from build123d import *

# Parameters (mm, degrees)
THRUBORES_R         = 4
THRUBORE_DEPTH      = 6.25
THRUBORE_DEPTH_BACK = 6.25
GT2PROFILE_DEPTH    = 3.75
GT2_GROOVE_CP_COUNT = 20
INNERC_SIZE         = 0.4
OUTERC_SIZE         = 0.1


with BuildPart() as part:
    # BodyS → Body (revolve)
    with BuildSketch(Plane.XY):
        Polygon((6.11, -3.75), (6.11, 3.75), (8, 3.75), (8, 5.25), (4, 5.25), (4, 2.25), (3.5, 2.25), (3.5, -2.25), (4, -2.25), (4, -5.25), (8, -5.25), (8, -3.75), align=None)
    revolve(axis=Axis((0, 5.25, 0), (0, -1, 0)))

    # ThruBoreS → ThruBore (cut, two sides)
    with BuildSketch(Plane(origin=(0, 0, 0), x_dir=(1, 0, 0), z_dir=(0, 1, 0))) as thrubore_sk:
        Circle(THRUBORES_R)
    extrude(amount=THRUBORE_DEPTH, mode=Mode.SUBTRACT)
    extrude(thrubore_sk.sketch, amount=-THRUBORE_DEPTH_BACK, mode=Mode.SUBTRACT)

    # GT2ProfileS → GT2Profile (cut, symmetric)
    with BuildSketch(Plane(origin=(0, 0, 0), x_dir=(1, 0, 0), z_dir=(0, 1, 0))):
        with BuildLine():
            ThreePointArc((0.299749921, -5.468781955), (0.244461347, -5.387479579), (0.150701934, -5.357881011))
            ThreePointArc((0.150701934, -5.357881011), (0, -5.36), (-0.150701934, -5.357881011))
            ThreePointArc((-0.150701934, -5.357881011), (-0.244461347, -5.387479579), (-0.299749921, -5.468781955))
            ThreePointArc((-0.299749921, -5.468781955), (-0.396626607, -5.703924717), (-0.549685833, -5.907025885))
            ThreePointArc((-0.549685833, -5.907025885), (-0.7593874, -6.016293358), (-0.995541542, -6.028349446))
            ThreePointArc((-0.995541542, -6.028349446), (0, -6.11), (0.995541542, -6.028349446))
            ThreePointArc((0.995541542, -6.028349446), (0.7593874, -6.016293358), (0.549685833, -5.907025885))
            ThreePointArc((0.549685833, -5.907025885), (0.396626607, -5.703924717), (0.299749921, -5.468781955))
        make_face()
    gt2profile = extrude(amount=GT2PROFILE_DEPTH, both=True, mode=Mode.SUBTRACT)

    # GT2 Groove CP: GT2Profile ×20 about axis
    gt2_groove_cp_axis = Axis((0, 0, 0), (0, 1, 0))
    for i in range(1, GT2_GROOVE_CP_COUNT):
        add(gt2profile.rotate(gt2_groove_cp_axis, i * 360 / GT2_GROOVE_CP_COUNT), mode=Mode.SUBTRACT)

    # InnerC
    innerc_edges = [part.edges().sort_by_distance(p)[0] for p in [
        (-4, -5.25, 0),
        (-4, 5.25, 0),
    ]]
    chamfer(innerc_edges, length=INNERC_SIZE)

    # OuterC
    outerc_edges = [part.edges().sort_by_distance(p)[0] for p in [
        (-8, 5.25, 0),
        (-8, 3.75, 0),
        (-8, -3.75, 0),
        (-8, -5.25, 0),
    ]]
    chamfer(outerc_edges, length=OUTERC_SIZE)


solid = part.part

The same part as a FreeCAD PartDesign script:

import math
import FreeCAD as App
import Part
import Sketcher


def edges_at(feature, points):
    """Names of the edges that pass closest to the given points."""
    edges = feature.Shape.Edges
    near = lambda p: min(range(len(edges)), key=lambda i: edges[i].distToShape(Part.Vertex(*p))[0])
    return sorted({f"Edge{near(p) + 1}" for p in points})


def add_polygon(sketch, points):
    """Adds a closed chain of lines whose ends are joined by coincident constraints."""
    first, n = sketch.GeometryCount, len(points)
    for a, b in zip(points, points[1:] + points[:1]):
        sketch.addGeometry(Part.LineSegment(App.Vector(*a, 0), App.Vector(*b, 0)), False)
    for i in range(n):
        sketch.addConstraint(Sketcher.Constraint("Coincident", first + i, 2, first + (i + 1) % n, 1))

doc = App.newDocument("Part")
body = doc.addObject("PartDesign::Body", "Body")

# Sketch on XY plane
sketch1 = body.newObject("Sketcher::SketchObject", "Sketch")
sketch1.AttachmentSupport = (doc.getObject("XY_Plane"), [""])
sketch1.MapMode = "FlatFace"
add_polygon(sketch1, [(6.1, -3.8), (6.1, 3.8), (8, 3.8), (8, 5.2), (4, 5.2), (4, 2.2), (3.5, 2.2), (3.5, -2.2), (4, -2.2), (4, -5.2), (8, -5.2), (8, -3.8)])  # lines 0-11
sketch1.addConstraint([
    Sketcher.Constraint("Vertical", 0),
    Sketcher.Constraint("Horizontal", 1),
    Sketcher.Constraint("Vertical", 2),
    Sketcher.Constraint("Horizontal", 3),
    Sketcher.Constraint("Vertical", 4),
    Sketcher.Constraint("Horizontal", 5),
    Sketcher.Constraint("Vertical", 6),
    Sketcher.Constraint("Horizontal", 7),
    Sketcher.Constraint("Vertical", 8),
    Sketcher.Constraint("Horizontal", 9),
    Sketcher.Constraint("Vertical", 10),
    Sketcher.Constraint("Horizontal", 11),
    Sketcher.Constraint("Symmetric", 4, 2, 7, 2, -1),
    Sketcher.Constraint("Symmetric", 2, 2, 9, 2, -1),
    Sketcher.Constraint("Equal", 2, 10),
    Sketcher.Constraint("DistanceX", 3, 2, 3, 1, 4.0),
    Sketcher.Constraint("DistanceY", 4, 2, 4, 1, 3.0),
    Sketcher.Constraint("DistanceX", 5, 2, 5, 1, 0.5),
    Sketcher.Constraint("DistanceY", 0, 1, 0, 2, 7.5),
    Sketcher.Constraint("DistanceY", 2, 1, 2, 2, 1.5),
    Sketcher.Constraint("DistanceX", -1, 1, 1, 2, 8.0),
    Sketcher.Constraint("DistanceX", 1, 1, 1, 2, 1.89),
])
revolution = body.newObject("PartDesign::Revolution", "Revolution")
revolution.Profile = sketch1
revolution.ReferenceAxis = (sketch1, ["V_Axis"])
revolution.Angle = 360

# Sketch on XZ plane
sketch2 = body.newObject("Sketcher::SketchObject", "Sketch001")
sketch2.AttachmentSupport = (doc.getObject("XZ_Plane"), [""])
sketch2.MapMode = "FlatFace"
sketch2.addGeometry(Part.Circle(App.Vector(0, 0, 0), App.Vector(0, 0, 1), 4), False)
sketch2.addConstraint([
    Sketcher.Constraint("Coincident", 0, 3, -1, 1),
    Sketcher.Constraint("Diameter", 0, 8.0),
])
pocket1 = body.newObject("PartDesign::Pocket", "Pocket")
pocket1.Profile = sketch2
pocket1.Type = "ThroughAll"
pocket1.Midplane = True

# Sketch on XZ plane
sketch3 = body.newObject("Sketcher::SketchObject", "Sketch002")
sketch3.AttachmentSupport = (doc.getObject("XZ_Plane"), [""])
sketch3.MapMode = "FlatFace"
sketch3.addGeometry([
    Part.ArcOfCircle(Part.Circle(App.Vector(0.15, 5.51, 0), App.Vector(0, 0, 1), 0.15), math.radians(-92), math.radians(-15)),  # 0
    Part.ArcOfCircle(Part.Circle(App.Vector(0, 0, 0), App.Vector(0, 0, 1), 5.36), math.radians(88.39), math.radians(91.61)),  # 1
    Part.ArcOfCircle(Part.Circle(App.Vector(-0.15, 5.51, 0), App.Vector(0, 0, 1), 0.15), math.radians(-165), math.radians(-88)),  # 2
    Part.ArcOfCircle(Part.Circle(App.Vector(-1.27, 5.21, 0), App.Vector(0, 0, 1), 1), math.radians(15), math.radians(44)),  # 3
    Part.ArcOfCircle(Part.Circle(App.Vector(-0.91, 5.48, 0), App.Vector(0, 0, 1), 0.55), math.radians(50), math.radians(99)),  # 4
    Part.ArcOfCircle(Part.Circle(App.Vector(0, 0, 0), App.Vector(0, 0, 1), 6.11), math.radians(80.62), math.radians(99.38)),  # 5
    Part.ArcOfCircle(Part.Circle(App.Vector(0.91, 5.48, 0), App.Vector(0, 0, 1), 0.55), math.radians(81), math.radians(130)),  # 6
    Part.ArcOfCircle(Part.Circle(App.Vector(1.27, 5.21, 0), App.Vector(0, 0, 1), 1), math.radians(136), math.radians(165)),  # 7
], False)
sketch3.addConstraint([
    Sketcher.Constraint("Tangent", 0, 1, 1, 1),
    Sketcher.Constraint("Tangent", 1, 2, 2, 2),
    Sketcher.Constraint("Tangent", 2, 1, 3, 1),
    Sketcher.Constraint("Coincident", 3, 2, 4, 1),
    Sketcher.Constraint("Tangent", 4, 2, 5, 2),
    Sketcher.Constraint("Tangent", 5, 1, 6, 1),
    Sketcher.Constraint("Coincident", 6, 2, 7, 1),
    Sketcher.Constraint("Tangent", 7, 2, 0, 2),
    Sketcher.Constraint("Coincident", 1, 3, -1, 1),
    Sketcher.Constraint("Coincident", 5, 3, -1, 1),
    Sketcher.Constraint("Equal", 0, 2),
    Sketcher.Constraint("Equal", 4, 6),
    Sketcher.Constraint("Equal", 3, 7),
    Sketcher.Constraint("Symmetric", 3, 3, 7, 3, -2),
    Sketcher.Constraint("Horizontal", 4, 3, 6, 3),
    Sketcher.Constraint("Radius", 3, 1.0),
    Sketcher.Constraint("Radius", 0, 0.15),
    Sketcher.Constraint("Radius", 1, 5.36),
    Sketcher.Constraint("Radius", 5, 6.11),
    Sketcher.Constraint("Radius", 4, 0.555),
    Sketcher.Constraint("DistanceX", -1, 1, 0, 1, 0.150702),
    Sketcher.Constraint("DistanceX", 3, 3, 6, 3, 2.170399),
    Sketcher.Constraint("DistanceY", 1, 2, 2, 1, 0.110901),
])
pocket2 = body.newObject("PartDesign::Pocket", "Pocket001")
pocket2.Profile = sketch3
pocket2.Length = 7.5
pocket2.Midplane = True
doc.recompute()

polarpattern = body.newObject("PartDesign::PolarPattern", "PolarPattern")
polarpattern.Originals = [pocket2]
polarpattern.Axis = (doc.getObject("Y_Axis"), [""])
polarpattern.Angle = 360
polarpattern.Occurrences = 20
body.Tip = polarpattern
doc.recompute()

chamfer = body.newObject("PartDesign::Chamfer", "Chamfer")
chamfer.Base = (polarpattern, edges_at(polarpattern, [(-4, -5.25, 0), (-4, 5.25, 0)]))
chamfer.Size = 0.4
doc.recompute()

chamfer2 = body.newObject("PartDesign::Chamfer", "Chamfer001")
chamfer2.Base = (chamfer, edges_at(chamfer, [
    (-8, 5.25, 0),
    (-8, 3.75, 0),
    (-8, -3.75, 0),
    (-8, -5.25, 0),
]))
chamfer2.Size = 0.1

doc.recompute()
